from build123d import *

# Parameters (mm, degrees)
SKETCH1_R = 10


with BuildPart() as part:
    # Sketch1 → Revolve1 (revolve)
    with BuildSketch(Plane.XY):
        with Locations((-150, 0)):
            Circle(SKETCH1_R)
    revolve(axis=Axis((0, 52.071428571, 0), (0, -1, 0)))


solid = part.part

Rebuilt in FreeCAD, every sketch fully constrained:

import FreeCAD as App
import Part
import Sketcher
from FreeCAD import Vector
Q = App.Units.Quantity

doc = App.newDocument("Part")
body = doc.addObject("PartDesign::Body", "Body")

# Sketch on XY plane
sketch1 = doc.addObject("Sketcher::SketchObject", "Sketch")
body.addObject(sketch1)
sketch1.AttachmentSupport = (doc.XY_Plane, [""])
sketch1.MapMode = "FlatFace"
sketch1.addGeometry(Part.Circle(Vector(-150, 0, 0), Vector(0, 0, 1), 10), False)
sketch1.addConstraint(Sketcher.Constraint("PointOnObject", 0, 3, -1))
sketch1.addConstraint(Sketcher.Constraint("Diameter", 0, Q("20 mm")))
sketch1.addConstraint(Sketcher.Constraint("DistanceX", 0, 3, -1, 1, Q("150 mm")))
revolution = doc.addObject("PartDesign::Revolution", "Revolution")
body.addObject(revolution)
revolution.Profile = sketch1
revolution.ReferenceAxis = (sketch1, ["V_Axis"])
revolution.Angle = 360

doc.recompute()
